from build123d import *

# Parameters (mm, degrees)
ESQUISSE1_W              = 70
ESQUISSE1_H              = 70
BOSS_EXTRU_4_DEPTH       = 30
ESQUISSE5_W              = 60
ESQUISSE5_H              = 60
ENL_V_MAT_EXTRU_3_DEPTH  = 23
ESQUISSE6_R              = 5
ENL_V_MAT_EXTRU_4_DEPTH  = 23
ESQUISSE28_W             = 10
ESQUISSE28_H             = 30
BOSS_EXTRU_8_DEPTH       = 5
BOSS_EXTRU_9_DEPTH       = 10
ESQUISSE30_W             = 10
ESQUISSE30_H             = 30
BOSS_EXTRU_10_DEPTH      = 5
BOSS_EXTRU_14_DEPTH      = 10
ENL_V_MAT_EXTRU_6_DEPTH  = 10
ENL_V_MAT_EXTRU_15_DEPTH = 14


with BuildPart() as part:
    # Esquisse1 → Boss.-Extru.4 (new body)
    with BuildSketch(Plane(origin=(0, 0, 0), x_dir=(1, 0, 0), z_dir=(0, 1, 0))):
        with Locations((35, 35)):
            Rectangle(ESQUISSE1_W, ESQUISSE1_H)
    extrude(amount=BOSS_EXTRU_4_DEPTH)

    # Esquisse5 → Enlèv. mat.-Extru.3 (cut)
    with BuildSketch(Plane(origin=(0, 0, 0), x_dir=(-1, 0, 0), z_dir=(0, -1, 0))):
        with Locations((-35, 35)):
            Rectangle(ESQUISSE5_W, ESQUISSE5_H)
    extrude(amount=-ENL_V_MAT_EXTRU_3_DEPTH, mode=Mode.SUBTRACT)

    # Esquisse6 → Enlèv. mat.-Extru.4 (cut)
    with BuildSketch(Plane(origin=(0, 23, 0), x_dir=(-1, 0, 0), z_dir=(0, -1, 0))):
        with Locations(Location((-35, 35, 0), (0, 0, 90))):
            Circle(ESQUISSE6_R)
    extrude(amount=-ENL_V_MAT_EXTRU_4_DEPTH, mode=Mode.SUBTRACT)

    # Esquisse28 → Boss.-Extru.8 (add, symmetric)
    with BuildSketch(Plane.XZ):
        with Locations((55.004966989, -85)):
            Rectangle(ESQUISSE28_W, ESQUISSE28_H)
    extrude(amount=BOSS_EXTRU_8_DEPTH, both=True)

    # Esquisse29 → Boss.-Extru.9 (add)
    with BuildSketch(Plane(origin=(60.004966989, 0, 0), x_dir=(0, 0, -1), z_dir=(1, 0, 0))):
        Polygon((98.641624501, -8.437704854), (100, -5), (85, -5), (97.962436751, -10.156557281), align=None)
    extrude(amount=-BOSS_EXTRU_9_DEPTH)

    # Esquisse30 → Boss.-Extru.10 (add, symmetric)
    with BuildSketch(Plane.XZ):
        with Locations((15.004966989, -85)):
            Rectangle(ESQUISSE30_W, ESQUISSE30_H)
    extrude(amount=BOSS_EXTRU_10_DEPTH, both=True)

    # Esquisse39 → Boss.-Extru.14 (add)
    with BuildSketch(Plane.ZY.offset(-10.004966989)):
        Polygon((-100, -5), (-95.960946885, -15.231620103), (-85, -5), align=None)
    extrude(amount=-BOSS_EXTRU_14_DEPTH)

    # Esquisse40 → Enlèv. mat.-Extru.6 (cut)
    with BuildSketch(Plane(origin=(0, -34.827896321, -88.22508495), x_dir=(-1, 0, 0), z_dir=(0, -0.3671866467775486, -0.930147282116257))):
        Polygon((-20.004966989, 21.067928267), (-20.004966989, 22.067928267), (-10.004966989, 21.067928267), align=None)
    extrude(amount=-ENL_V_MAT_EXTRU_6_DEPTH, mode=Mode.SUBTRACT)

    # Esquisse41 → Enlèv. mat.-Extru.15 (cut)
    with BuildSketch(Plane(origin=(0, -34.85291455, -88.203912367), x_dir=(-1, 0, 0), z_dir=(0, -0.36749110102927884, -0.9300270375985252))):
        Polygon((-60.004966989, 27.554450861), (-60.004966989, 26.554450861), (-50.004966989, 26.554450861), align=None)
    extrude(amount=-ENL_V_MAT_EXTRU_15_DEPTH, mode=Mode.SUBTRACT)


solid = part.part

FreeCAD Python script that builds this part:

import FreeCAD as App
import Part
import Sketcher

V = App.Vector

doc = App.newDocument("Part")
body = doc.addObject("PartDesign::Body", "Body")

sketch1 = body.newObject("Sketcher::SketchObject", "Sketch")
sketch1.AttachmentSupport = (doc.getObject("XZ_Plane"), [""])
sketch1.MapMode = "FlatFace"
sketch1.addGeometry(Part.LineSegment(V(0, -70, 0), V(0, 0, 0)), False)
sketch1.addGeometry(Part.LineSegment(V(0, 0, 0), V(70, 0, 0)), False)
sketch1.addGeometry(Part.LineSegment(V(70, 0, 0), V(70, -70, 0)), False)
sketch1.addGeometry(Part.LineSegment(V(70, -70, 0), V(0, -70, 0)), False)
sketch1.addConstraint(Sketcher.Constraint("Coincident", 0, 2, 1, 1))
sketch1.addConstraint(Sketcher.Constraint("Coincident", 1, 2, 2, 1))
sketch1.addConstraint(Sketcher.Constraint("Coincident", 2, 2, 3, 1))
sketch1.addConstraint(Sketcher.Constraint("Coincident", 3, 2, 0, 1))
sketch1.addConstraint(Sketcher.Constraint("Vertical", 0))
sketch1.addConstraint(Sketcher.Constraint("Horizontal", 1))
sketch1.addConstraint(Sketcher.Constraint("Vertical", 2))
sketch1.addConstraint(Sketcher.Constraint("Horizontal", 3))
sketch1.addConstraint(Sketcher.Constraint("Coincident", 0, 2, -1, 1))
sketch1.addConstraint(Sketcher.Constraint("Equal", 3, 0))
sketch1.addConstraint(Sketcher.Constraint("DistanceX", 1, 1, 1, 2, 70.0))
pad1 = body.newObject("PartDesign::Pad", "Pad")
pad1.Profile = sketch1
pad1.Length = 30
pad1.Reversed = True

sketch2 = body.newObject("Sketcher::SketchObject", "Sketch001")
sketch2.AttachmentSupport = (doc.getObject("XZ_Plane"), [""])
sketch2.MapMode = "FlatFace"
sketch2.addGeometry(Part.LineSegment(V(65, -65, 0), V(65, -5, 0)), False)
sketch2.addGeometry(Part.LineSegment(V(65, -5, 0), V(5, -5, 0)), False)
sketch2.addGeometry(Part.LineSegment(V(5, -5, 0), V(5, -65, 0)), False)
sketch2.addGeometry(Part.LineSegment(V(5, -65, 0), V(65, -65, 0)), False)
sketch2.addConstraint(Sketcher.Constraint("Coincident", 0, 2, 1, 1))
sketch2.addConstraint(Sketcher.Constraint("Coincident", 1, 2, 2, 1))
sketch2.addConstraint(Sketcher.Constraint("Coincident", 2, 2, 3, 1))
sketch2.addConstraint(Sketcher.Constraint("Coincident", 3, 2, 0, 1))
sketch2.addConstraint(Sketcher.Constraint("Vertical", 0))
sketch2.addConstraint(Sketcher.Constraint("Horizontal", 1))
sketch2.addConstraint(Sketcher.Constraint("Vertical", 2))
sketch2.addConstraint(Sketcher.Constraint("Horizontal", 3))
sketch2.addConstraint(Sketcher.Constraint("Equal", 3, 0))
sketch2.addConstraint(Sketcher.Constraint("DistanceX", 1, 2, 1, 1, 60.0))
sketch2.addConstraint(Sketcher.Constraint("DistanceX", -1, 1, 0, 2, 65.0))
sketch2.addConstraint(Sketcher.Constraint("DistanceY", 0, 2, -1, 1, 5.0))
pocket1 = body.newObject("PartDesign::Pocket", "Pocket")
pocket1.Profile = sketch2
pocket1.Length = 23

sketch3 = body.newObject("Sketcher::SketchObject", "Sketch002")
sketch3.AttachmentSupport = (doc.getObject("XZ_Plane"), [""])
sketch3.MapMode = "FlatFace"
sketch3.AttachmentOffset = App.Placement(V(0, 0, -23), App.Rotation())
sketch3.addGeometry(Part.Circle(V(35, -35, 0), V(0, 0, 1), 5), False)
sketch3.addConstraint(Sketcher.Constraint("Diameter", 0, 10.0))
sketch3.addConstraint(Sketcher.Constraint("DistanceX", -1, 1, 0, 3, 35.0))
sketch3.addConstraint(Sketcher.Constraint("DistanceY", 0, 3, -1, 1, 35.0))
pocket2 = body.newObject("PartDesign::Pocket", "Pocket001")
pocket2.Profile = sketch3
pocket2.Length = 23

sketch4 = body.newObject("Sketcher::SketchObject", "Sketch003")
sketch4.AttachmentSupport = (doc.getObject("XZ_Plane"), [""])
sketch4.MapMode = "FlatFace"
sketch4.addGeometry(Part.LineSegment(V(50, -70, 0), V(50, -100, 0)), False)
sketch4.addGeometry(Part.LineSegment(V(50, -100, 0), V(60, -100, 0)), False)
sketch4.addGeometry(Part.LineSegment(V(60, -100, 0), V(60, -70, 0)), False)
sketch4.addGeometry(Part.LineSegment(V(60, -70, 0), V(50, -70, 0)), False)
sketch4.addConstraint(Sketcher.Constraint("Coincident", 0, 2, 1, 1))
sketch4.addConstraint(Sketcher.Constraint("Coincident", 1, 2, 2, 1))
sketch4.addConstraint(Sketcher.Constraint("Coincident", 2, 2, 3, 1))
sketch4.addConstraint(Sketcher.Constraint("Coincident", 3, 2, 0, 1))
sketch4.addConstraint(Sketcher.Constraint("Vertical", 0))
sketch4.addConstraint(Sketcher.Constraint("Horizontal", 1))
sketch4.addConstraint(Sketcher.Constraint("Vertical", 2))
sketch4.addConstraint(Sketcher.Constraint("Horizontal", 3))
sketch4.addConstraint(Sketcher.Constraint("DistanceX", 1, 1, 1, 2, 10.0))
sketch4.addConstraint(Sketcher.Constraint("DistanceY", 0, 2, 0, 1, 30.0))
sketch4.addConstraint(Sketcher.Constraint("DistanceY", 0, 2, -1, 1, 100.0))
sketch4.addConstraint(Sketcher.Constraint("DistanceX", -1, 1, 0, 2, 50.004967))
pad2 = body.newObject("PartDesign::Pad", "Pad001")
pad2.Profile = sketch4
pad2.Length = 10
pad2.Midplane = True

sketch5 = body.newObject("Sketcher::SketchObject", "Sketch004")
sketch5.AttachmentSupport = (doc.getObject("YZ_Plane"), [""])
sketch5.MapMode = "FlatFace"
sketch5.AttachmentOffset = App.Placement(V(0, 0, 60.004967), App.Rotation())
sketch5.addGeometry(Part.LineSegment(V(-8.4, -98.6, 0), V(-5, -100, 0)), False)
sketch5.addGeometry(Part.LineSegment(V(-5, -100, 0), V(-5, -85, 0)), False)
sketch5.addGeometry(Part.LineSegment(V(-5, -85, 0), V(-10.2, -98, 0)), False)
sketch5.addGeometry(Part.LineSegment(V(-10.2, -98, 0), V(-8.4, -98.6, 0)), False)
sketch5.addConstraint(Sketcher.Constraint("Coincident", 0, 2, 1, 1))
sketch5.addConstraint(Sketcher.Constraint("Coincident", 1, 2, 2, 1))
sketch5.addConstraint(Sketcher.Constraint("Coincident", 2, 2, 3, 1))
sketch5.addConstraint(Sketcher.Constraint("Coincident", 3, 2, 0, 1))
sketch5.addConstraint(Sketcher.Constraint("Vertical", 1))
sketch5.addConstraint(Sketcher.Constraint("Parallel", 0, 3))
sketch5.addConstraint(Sketcher.Constraint("DistanceY", 1, 1, 1, 2, 15.0))
sketch5.addConstraint(Sketcher.Constraint("DistanceX", 0, 2, -1, 1, 5.0))
sketch5.addConstraint(Sketcher.Constraint("DistanceY", 0, 2, -1, 1, 100.0))
sketch5.addConstraint(Sketcher.Constraint("Distance", 0, 3.696349))
sketch5.addConstraint(Sketcher.Constraint("Distance", 2, 13.950443))
sketch5.addConstraint(Sketcher.Constraint("Distance", 3, 1.848175))
pad3 = body.newObject("PartDesign::Pad", "Pad002")
pad3.Profile = sketch5
pad3.Length = 10
pad3.Reversed = True

sketch6 = body.newObject("Sketcher::SketchObject", "Sketch005")
sketch6.AttachmentSupport = (doc.getObject("XZ_Plane"), [""])
sketch6.MapMode = "FlatFace"
sketch6.addGeometry(Part.LineSegment(V(10, -70, 0), V(10, -100, 0)), False)
sketch6.addGeometry(Part.LineSegment(V(10, -100, 0), V(20, -100, 0)), False)
sketch6.addGeometry(Part.LineSegment(V(20, -100, 0), V(20, -70, 0)), False)
sketch6.addGeometry(Part.LineSegment(V(20, -70, 0), V(10, -70, 0)), False)
sketch6.addConstraint(Sketcher.Constraint("Coincident", 0, 2, 1, 1))
sketch6.addConstraint(Sketcher.Constraint("Coincident", 1, 2, 2, 1))
sketch6.addConstraint(Sketcher.Constraint("Coincident", 2, 2, 3, 1))
sketch6.addConstraint(Sketcher.Constraint("Coincident", 3, 2, 0, 1))
sketch6.addConstraint(Sketcher.Constraint("Vertical", 0))
sketch6.addConstraint(Sketcher.Constraint("Horizontal", 1))
sketch6.addConstraint(Sketcher.Constraint("Vertical", 2))
sketch6.addConstraint(Sketcher.Constraint("Horizontal", 3))
sketch6.addConstraint(Sketcher.Constraint("DistanceX", 1, 1, 1, 2, 10.0))
sketch6.addConstraint(Sketcher.Constraint("DistanceY", 0, 2, 0, 1, 30.0))
sketch6.addConstraint(Sketcher.Constraint("DistanceY", 0, 2, -1, 1, 100.0))
sketch6.addConstraint(Sketcher.Constraint("DistanceX", -1, 1, 0, 2, 10.004967))
pad4 = body.newObject("PartDesign::Pad", "Pad003")
pad4.Profile = sketch6
pad4.Length = 10
pad4.Midplane = True

sketch7 = body.newObject("Sketcher::SketchObject", "Sketch006")
sketch7.AttachmentSupport = (doc.getObject("YZ_Plane"), [""])
sketch7.MapMode = "FlatFace"
sketch7.AttachmentOffset = App.Placement(V(0, 0, 10.004967), App.Rotation())
sketch7.addGeometry(Part.LineSegment(V(-5, -100, 0), V(-15, -96, 0)), False)
sketch7.addGeometry(Part.LineSegment(V(-15, -96, 0), V(-5, -85, 0)), False)
sketch7.addGeometry(Part.LineSegment(V(-5, -85, 0), V(-5, -100, 0)), False)
sketch7.addConstraint(Sketcher.Constraint("Coincident", 0, 2, 1, 1))
sketch7.addConstraint(Sketcher.Constraint("Coincident", 1, 2, 2, 1))
sketch7.addConstraint(Sketcher.Constraint("Coincident", 2, 2, 0, 1))
sketch7.addConstraint(Sketcher.Constraint("Vertical", 2))
sketch7.addConstraint(Sketcher.Constraint("DistanceY", 2, 2, 2, 1, 15.0))
sketch7.addConstraint(Sketcher.Constraint("Distance", 0, 11.0))
sketch7.addConstraint(Sketcher.Constraint("DistanceX", 1, 2, -1, 1, 5.0))
sketch7.addConstraint(Sketcher.Constraint("DistanceY", 1, 2, -1, 1, 85.0))
sketch7.addConstraint(Sketcher.Constraint("Distance", 1, 14.994279))
pad5 = body.newObject("PartDesign::Pad", "Pad004")
pad5.Profile = sketch7
pad5.Length = 10

sketch8 = body.newObject("Sketcher::SketchObject", "Sketch007")
sketch8.Placement = App.Placement(V(0, -34.827896, -88.225085), App.Rotation(V(-1, 0, 0), V(0, 0.930147282, -0.367186647), V(0, -0.367186647, -0.930147282), "ZXY"))
sketch8.addGeometry(Part.LineSegment(V(-20, 22.1, 0), V(-20, 21.1, 0)), False)
sketch8.addGeometry(Part.LineSegment(V(-20, 21.1, 0), V(-10, 21.1, 0)), False)
sketch8.addGeometry(Part.LineSegment(V(-10, 21.1, 0), V(-20, 22.1, 0)), False)
sketch8.addConstraint(Sketcher.Constraint("Coincident", 0, 2, 1, 1))
sketch8.addConstraint(Sketcher.Constraint("Coincident", 1, 2, 2, 1))
sketch8.addConstraint(Sketcher.Constraint("Coincident", 2, 2, 0, 1))
sketch8.addConstraint(Sketcher.Constraint("Vertical", 0))
sketch8.addConstraint(Sketcher.Constraint("Horizontal", 1))
sketch8.addConstraint(Sketcher.Constraint("DistanceX", 1, 1, 1, 2, 10.0))
sketch8.addConstraint(Sketcher.Constraint("DistanceY", 0, 2, 0, 1, 1.0))
sketch8.addConstraint(Sketcher.Constraint("DistanceY", -1, 1, 0, 2, 21.067928))
sketch8.addConstraint(Sketcher.Constraint("DistanceX", 0, 2, -1, 1, 20.004967))
pocket3 = body.newObject("PartDesign::Pocket", "Pocket002")
pocket3.Profile = sketch8
pocket3.Length = 10

sketch9 = body.newObject("Sketcher::SketchObject", "Sketch008")
sketch9.Placement = App.Placement(V(0, -34.852915, -88.203912), App.Rotation(V(-1, 0, 0), V(0, 0.930027038, -0.367491101), V(0, -0.367491101, -0.930027038), "ZXY"))
sketch9.addGeometry(Part.LineSegment(V(-60, 27.6, 0), V(-60, 26.6, 0)), False)
sketch9.addGeometry(Part.LineSegment(V(-60, 26.6, 0), V(-50, 26.6, 0)), False)
sketch9.addGeometry(Part.LineSegment(V(-50, 26.6, 0), V(-60, 27.6, 0)), False)
sketch9.addConstraint(Sketcher.Constraint("Coincident", 0, 2, 1, 1))
sketch9.addConstraint(Sketcher.Constraint("Coincident", 1, 2, 2, 1))
sketch9.addConstraint(Sketcher.Constraint("Coincident", 2, 2, 0, 1))
sketch9.addConstraint(Sketcher.Constraint("Vertical", 0))
sketch9.addConstraint(Sketcher.Constraint("Horizontal", 1))
sketch9.addConstraint(Sketcher.Constraint("DistanceX", 1, 1, 1, 2, 10.0))
sketch9.addConstraint(Sketcher.Constraint("DistanceY", 0, 2, 0, 1, 1.0))
sketch9.addConstraint(Sketcher.Constraint("DistanceY", -1, 1, 0, 2, 26.554451))
sketch9.addConstraint(Sketcher.Constraint("DistanceX", 0, 2, -1, 1, 60.004967))
pocket4 = body.newObject("PartDesign::Pocket", "Pocket003")
pocket4.Profile = sketch9
pocket4.Length = 14

doc.recompute()
